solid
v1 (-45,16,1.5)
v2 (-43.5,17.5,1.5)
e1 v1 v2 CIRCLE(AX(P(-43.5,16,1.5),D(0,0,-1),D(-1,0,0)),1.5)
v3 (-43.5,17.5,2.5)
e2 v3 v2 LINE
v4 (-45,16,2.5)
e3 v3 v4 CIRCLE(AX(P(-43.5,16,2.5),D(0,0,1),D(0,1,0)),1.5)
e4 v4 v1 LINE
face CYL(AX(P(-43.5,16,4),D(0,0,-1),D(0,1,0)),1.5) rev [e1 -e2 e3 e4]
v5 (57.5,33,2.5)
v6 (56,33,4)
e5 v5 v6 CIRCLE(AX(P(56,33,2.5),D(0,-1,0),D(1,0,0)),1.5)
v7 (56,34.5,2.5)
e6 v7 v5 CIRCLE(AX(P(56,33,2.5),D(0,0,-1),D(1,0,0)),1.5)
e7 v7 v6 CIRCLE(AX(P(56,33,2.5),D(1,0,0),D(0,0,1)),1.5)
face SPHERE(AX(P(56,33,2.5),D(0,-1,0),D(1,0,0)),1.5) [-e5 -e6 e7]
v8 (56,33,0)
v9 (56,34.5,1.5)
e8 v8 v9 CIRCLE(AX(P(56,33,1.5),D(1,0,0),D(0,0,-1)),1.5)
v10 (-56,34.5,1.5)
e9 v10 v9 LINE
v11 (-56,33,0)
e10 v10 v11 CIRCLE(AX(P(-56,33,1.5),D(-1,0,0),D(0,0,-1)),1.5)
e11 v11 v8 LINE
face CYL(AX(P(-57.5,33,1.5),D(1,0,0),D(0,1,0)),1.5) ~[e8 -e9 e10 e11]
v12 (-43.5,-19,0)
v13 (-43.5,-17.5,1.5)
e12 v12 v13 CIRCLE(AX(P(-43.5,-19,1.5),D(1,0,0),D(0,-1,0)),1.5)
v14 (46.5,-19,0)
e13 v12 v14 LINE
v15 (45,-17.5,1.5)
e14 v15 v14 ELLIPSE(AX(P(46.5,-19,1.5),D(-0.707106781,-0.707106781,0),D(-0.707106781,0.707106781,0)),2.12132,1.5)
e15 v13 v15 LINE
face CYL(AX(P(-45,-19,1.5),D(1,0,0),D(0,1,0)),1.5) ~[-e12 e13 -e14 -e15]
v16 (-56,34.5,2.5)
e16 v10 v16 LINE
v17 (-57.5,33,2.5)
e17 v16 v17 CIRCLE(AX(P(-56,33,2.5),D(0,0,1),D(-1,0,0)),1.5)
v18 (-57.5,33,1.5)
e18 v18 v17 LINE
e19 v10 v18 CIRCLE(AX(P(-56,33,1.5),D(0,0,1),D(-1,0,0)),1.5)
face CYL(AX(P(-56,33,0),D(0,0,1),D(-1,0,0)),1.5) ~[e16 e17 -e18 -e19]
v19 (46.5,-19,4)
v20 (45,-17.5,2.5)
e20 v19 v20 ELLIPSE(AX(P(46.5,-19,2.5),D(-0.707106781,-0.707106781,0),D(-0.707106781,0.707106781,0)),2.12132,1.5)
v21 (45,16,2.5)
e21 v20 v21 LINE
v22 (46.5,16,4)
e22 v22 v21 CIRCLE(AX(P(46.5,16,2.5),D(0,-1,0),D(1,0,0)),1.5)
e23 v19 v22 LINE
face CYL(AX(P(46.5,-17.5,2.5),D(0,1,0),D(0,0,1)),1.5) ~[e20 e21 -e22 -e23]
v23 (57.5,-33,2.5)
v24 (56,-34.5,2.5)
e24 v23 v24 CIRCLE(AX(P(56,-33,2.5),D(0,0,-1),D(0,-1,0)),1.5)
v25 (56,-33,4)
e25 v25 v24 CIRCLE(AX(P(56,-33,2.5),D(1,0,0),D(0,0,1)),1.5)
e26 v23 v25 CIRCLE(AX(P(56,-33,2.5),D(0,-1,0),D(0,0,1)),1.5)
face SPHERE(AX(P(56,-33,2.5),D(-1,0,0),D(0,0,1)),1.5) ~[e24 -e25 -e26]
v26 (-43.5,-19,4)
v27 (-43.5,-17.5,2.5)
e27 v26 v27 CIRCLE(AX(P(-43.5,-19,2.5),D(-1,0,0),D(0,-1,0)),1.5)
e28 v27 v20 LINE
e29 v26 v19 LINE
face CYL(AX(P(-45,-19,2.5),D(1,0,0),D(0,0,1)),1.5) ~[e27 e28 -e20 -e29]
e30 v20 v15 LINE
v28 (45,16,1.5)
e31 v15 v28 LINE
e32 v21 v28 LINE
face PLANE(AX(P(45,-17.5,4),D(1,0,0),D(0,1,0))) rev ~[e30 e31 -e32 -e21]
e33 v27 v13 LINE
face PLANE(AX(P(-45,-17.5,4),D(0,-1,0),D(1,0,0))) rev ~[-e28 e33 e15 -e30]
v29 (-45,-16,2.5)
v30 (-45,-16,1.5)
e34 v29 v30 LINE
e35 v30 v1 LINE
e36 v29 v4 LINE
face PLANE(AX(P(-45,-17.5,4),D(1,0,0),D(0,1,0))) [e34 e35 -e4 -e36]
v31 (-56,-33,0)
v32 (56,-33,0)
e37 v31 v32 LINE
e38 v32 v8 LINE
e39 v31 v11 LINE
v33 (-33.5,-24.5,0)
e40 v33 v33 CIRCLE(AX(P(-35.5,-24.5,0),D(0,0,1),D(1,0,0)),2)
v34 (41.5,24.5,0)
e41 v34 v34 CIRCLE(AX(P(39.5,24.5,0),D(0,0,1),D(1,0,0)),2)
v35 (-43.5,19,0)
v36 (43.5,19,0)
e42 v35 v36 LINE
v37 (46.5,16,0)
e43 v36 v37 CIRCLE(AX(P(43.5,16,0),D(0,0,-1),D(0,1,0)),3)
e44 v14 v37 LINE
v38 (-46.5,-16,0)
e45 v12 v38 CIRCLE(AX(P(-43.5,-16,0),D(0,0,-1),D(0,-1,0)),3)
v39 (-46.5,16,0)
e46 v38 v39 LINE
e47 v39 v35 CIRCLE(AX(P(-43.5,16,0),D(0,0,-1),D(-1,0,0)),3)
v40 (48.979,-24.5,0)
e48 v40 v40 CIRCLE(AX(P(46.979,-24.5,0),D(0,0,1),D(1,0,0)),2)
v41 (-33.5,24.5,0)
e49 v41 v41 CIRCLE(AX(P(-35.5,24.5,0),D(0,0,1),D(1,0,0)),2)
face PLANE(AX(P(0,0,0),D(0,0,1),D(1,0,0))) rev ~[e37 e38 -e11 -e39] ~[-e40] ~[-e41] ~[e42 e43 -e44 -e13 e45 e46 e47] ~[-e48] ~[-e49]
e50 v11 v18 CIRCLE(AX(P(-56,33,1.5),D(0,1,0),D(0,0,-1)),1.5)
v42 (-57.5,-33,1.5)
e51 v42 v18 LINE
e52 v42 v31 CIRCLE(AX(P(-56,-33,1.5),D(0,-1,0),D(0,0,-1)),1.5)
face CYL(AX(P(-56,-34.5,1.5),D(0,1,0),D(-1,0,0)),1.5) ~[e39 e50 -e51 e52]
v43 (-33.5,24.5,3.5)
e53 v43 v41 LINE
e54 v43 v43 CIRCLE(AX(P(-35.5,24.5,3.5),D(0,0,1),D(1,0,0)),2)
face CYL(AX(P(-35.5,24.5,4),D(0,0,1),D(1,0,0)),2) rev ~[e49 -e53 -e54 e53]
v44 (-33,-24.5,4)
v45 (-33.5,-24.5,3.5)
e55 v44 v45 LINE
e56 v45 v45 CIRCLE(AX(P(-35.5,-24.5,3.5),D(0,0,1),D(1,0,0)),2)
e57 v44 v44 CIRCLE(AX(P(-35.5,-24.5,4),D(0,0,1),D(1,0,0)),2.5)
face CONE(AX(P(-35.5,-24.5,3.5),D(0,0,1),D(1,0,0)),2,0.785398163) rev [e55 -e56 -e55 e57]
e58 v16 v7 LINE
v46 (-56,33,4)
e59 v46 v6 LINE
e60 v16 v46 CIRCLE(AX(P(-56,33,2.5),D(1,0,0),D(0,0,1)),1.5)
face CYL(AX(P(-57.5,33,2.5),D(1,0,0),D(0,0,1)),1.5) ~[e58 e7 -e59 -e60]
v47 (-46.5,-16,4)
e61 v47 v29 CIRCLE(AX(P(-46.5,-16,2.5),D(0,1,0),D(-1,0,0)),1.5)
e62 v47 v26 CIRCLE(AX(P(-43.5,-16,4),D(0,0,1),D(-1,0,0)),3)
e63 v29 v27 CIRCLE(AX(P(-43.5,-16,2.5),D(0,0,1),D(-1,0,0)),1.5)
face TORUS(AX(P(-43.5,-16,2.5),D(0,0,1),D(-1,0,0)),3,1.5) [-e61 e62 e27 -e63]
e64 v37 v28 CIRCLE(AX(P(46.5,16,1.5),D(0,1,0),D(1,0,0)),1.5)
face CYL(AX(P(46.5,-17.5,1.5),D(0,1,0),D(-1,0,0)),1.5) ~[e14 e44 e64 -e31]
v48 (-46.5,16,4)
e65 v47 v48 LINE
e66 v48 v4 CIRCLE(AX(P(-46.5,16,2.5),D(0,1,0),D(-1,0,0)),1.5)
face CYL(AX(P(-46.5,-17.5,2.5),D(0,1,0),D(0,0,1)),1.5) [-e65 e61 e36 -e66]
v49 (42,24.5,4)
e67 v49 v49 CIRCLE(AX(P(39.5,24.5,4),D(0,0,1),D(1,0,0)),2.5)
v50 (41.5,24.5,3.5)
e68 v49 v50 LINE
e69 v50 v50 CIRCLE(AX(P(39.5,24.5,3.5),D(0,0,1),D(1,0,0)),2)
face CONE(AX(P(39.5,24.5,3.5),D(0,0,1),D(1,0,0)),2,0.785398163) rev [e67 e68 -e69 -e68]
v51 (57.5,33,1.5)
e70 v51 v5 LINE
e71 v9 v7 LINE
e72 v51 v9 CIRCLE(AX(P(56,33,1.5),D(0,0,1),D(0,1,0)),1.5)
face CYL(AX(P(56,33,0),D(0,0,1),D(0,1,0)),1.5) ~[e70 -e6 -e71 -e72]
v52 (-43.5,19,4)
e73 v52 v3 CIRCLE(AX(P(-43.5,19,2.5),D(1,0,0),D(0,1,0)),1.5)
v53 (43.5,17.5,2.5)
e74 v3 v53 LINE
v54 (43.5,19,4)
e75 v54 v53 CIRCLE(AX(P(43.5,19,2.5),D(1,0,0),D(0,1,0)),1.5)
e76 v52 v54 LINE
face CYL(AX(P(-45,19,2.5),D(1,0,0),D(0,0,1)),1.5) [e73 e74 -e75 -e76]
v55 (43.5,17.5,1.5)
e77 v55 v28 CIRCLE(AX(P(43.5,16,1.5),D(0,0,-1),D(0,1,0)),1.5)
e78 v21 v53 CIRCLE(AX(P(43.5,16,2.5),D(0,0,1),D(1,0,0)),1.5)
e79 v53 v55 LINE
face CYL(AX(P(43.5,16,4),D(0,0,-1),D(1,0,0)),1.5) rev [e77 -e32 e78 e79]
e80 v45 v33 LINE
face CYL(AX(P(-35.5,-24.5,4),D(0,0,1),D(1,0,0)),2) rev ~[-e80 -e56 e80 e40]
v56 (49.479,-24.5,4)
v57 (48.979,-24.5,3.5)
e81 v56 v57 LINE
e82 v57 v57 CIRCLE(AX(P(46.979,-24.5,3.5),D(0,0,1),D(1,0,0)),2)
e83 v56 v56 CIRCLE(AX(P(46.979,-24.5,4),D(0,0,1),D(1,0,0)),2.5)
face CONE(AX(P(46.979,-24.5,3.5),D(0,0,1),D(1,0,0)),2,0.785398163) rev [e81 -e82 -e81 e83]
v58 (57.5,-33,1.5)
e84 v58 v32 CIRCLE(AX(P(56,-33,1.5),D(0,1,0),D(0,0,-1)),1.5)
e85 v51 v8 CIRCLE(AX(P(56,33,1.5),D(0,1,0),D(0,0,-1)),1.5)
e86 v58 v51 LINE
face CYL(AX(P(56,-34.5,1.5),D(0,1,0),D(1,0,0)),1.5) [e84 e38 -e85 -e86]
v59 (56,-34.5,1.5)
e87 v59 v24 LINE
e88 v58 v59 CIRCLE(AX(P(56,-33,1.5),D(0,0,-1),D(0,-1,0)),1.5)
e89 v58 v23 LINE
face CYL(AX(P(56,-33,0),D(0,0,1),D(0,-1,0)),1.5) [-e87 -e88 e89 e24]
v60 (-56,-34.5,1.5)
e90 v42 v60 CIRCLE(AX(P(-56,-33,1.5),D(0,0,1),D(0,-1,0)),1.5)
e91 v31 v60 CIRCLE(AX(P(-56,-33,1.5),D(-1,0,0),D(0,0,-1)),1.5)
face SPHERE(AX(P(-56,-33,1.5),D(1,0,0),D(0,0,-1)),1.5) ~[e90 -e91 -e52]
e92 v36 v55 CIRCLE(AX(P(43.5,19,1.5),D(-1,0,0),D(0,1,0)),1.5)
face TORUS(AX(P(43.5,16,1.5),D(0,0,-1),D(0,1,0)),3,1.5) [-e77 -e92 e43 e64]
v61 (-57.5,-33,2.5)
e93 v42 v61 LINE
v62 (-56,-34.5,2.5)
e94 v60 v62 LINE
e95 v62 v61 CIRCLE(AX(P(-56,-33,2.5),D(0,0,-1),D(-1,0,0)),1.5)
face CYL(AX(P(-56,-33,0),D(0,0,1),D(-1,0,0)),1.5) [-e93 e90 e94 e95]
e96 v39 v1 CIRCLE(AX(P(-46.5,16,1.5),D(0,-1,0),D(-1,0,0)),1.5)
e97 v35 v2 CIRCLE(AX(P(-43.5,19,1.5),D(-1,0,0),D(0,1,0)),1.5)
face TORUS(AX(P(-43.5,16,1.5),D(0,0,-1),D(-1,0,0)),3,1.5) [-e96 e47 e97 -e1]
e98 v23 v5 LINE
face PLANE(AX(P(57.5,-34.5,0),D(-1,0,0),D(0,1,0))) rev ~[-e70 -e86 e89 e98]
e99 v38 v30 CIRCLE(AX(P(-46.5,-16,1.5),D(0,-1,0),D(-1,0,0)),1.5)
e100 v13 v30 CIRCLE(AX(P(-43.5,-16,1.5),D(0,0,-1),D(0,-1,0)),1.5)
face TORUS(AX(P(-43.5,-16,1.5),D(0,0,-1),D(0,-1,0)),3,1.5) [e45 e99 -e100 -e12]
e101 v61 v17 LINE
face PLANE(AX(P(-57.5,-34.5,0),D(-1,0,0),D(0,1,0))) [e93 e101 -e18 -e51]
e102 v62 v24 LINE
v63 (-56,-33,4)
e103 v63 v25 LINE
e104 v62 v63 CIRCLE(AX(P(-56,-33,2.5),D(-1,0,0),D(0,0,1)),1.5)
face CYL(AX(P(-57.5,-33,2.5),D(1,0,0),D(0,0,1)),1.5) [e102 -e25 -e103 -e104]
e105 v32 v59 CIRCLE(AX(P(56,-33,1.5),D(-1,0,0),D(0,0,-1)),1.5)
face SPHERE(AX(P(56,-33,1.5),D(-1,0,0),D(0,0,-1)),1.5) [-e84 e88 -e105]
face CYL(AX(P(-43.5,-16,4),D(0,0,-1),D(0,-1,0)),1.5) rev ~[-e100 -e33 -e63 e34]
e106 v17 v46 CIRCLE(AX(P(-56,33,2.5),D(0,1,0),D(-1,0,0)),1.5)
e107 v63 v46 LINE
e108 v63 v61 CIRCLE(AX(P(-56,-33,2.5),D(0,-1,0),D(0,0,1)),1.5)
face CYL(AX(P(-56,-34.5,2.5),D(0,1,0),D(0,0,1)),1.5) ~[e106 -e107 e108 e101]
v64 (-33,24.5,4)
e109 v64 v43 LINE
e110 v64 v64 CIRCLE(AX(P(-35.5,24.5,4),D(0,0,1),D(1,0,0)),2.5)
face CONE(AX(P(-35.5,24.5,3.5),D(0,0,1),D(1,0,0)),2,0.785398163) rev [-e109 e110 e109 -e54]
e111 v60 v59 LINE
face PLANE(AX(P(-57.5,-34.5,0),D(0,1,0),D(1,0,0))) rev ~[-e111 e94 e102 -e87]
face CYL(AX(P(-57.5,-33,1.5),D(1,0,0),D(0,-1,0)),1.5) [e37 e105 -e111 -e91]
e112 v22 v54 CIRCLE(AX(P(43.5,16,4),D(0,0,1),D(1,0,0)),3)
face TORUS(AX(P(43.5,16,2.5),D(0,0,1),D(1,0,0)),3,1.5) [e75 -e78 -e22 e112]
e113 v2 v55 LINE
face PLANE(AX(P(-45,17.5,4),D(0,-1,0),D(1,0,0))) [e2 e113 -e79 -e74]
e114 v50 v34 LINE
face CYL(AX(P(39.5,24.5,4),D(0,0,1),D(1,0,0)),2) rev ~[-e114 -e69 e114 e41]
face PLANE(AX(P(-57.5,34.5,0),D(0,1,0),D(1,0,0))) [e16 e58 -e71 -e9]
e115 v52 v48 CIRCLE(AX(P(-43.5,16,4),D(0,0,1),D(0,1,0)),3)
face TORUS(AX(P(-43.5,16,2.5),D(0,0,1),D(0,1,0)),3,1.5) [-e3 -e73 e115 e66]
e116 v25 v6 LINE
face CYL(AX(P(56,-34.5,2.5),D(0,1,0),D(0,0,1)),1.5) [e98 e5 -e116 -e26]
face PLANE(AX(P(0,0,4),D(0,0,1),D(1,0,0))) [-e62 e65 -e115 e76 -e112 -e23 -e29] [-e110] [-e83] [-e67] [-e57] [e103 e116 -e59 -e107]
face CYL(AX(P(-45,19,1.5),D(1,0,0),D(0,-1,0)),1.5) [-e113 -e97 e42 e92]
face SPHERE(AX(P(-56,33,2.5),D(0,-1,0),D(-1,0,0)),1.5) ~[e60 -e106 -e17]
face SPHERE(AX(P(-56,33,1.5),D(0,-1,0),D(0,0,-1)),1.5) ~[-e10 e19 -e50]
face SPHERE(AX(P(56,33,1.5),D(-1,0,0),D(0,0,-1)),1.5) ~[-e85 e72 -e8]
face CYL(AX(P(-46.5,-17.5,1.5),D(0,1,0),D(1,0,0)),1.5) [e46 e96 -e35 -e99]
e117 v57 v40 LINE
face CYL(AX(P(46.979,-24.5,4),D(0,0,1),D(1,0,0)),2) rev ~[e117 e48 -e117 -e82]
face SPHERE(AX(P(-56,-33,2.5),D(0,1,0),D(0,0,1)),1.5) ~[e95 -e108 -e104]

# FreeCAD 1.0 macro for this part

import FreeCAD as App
import Part
import Sketcher

V = App.Vector


def edges_at(feature, points):
    """Names of the edges that pass closest to the given points."""
    edges = feature.Shape.Edges
    near = lambda p: min(range(len(edges)), key=lambda i: edges[i].distToShape(Part.Vertex(*p))[0])
    return sorted({f"Edge{near(p) + 1}" for p in points})


def add_polygon(sketch, points):
    """Adds a closed chain of lines whose ends are joined by coincident constraints."""
    first, n = sketch.GeometryCount, len(points)
    for a, b in zip(points, points[1:] + points[:1]):
        sketch.addGeometry(Part.LineSegment(App.Vector(*a, 0), App.Vector(*b, 0)), False)
    for i in range(n):
        sketch.addConstraint(Sketcher.Constraint("Coincident", first + i, 2, first + (i + 1) % n, 1))

doc = App.newDocument("Part")
body = doc.addObject("PartDesign::Body", "Body")

sketch1 = doc.addObject("Sketcher::SketchObject", "Sketch")
body.addObject(sketch1)
sketch1.AttachmentSupport = (doc.XY_Plane, [""])
sketch1.MapMode = "FlatFace"
add_polygon(sketch1, [(-58, 34), (-58, -34), (58, -34), (58, 34)])
sketch1.addConstraint([
    Sketcher.Constraint("Vertical", 0),
    Sketcher.Constraint("Horizontal", 1),
    Sketcher.Constraint("Vertical", 2),
    Sketcher.Constraint("Horizontal", 3),
    Sketcher.Constraint("Symmetric", 0, 2, 2, 2, -1, 1),
    Sketcher.Constraint("DistanceX", 1, 1, 1, 2, 115.0),
    Sketcher.Constraint("DistanceY", 0, 2, 0, 1, 69.0),
])
pad1 = doc.addObject("PartDesign::Pad", "Pad")
body.addObject(pad1)
pad1.Profile = sketch1
pad1.Length = 4

sketch2 = doc.addObject("Sketcher::SketchObject", "Sketch001")
body.addObject(sketch2)
sketch2.AttachmentSupport = (doc.XY_Plane, [""])
sketch2.MapMode = "FlatFace"
sketch2.AttachmentOffset = App.Placement(V(0, 0, 4), App.Rotation())
sketch2.addGeometry([
    Part.Circle(V(-35.5, 24.5, 0), V(0, 0, 1), 2),
    Part.Circle(V(39.5, 24.5, 0), V(0, 0, 1), 2),
    Part.Circle(V(47, -24.5, 0), V(0, 0, 1), 2),
    Part.Circle(V(-35.5, -24.5, 0), V(0, 0, 1), 2),
], False)
sketch2.addConstraint([
    Sketcher.Constraint("Equal", 0, 1),
    Sketcher.Constraint("Equal", 1, 2),
    Sketcher.Constraint("Equal", 2, 3),
    Sketcher.Constraint("Symmetric", 0, 3, 3, 3, -1),
    Sketcher.Constraint("Horizontal", 0, 3, 1, 3),
    Sketcher.Constraint("Horizontal", 2, 3, 3, 3),
    Sketcher.Constraint("Diameter", 0, 4.0),
    Sketcher.Constraint("DistanceX", 0, 3, 1, 3, 75.0),
    Sketcher.Constraint("DistanceY", 2, 3, 1, 3, 49.0),
    Sketcher.Constraint("DistanceX", 0, 3, -1, 1, 35.5),
    Sketcher.Constraint("DistanceX", -1, 1, 2, 3, 46.979),
])
pocket1 = doc.addObject("PartDesign::Pocket", "Pocket")
body.addObject(pocket1)
pocket1.Profile = sketch2
pocket1.Length = 4

sketch3 = doc.addObject("Sketcher::SketchObject", "Sketch002")
body.addObject(sketch3)
sketch3.AttachmentSupport = (doc.XY_Plane, [""])
sketch3.MapMode = "FlatFace"
sketch3.AttachmentOffset = App.Placement(V(0, 0, 4), App.Rotation())
add_polygon(sketch3, [(-45, 18), (-45, -18), (45, -18), (45, 18)])
sketch3.addConstraint([
    Sketcher.Constraint("Vertical", 0),
    Sketcher.Constraint("Horizontal", 1),
    Sketcher.Constraint("Vertical", 2),
    Sketcher.Constraint("Horizontal", 3),
    Sketcher.Constraint("Symmetric", 0, 2, 2, 2, -1, 1),
    Sketcher.Constraint("DistanceX", 1, 1, 1, 2, 90.0),
    Sketcher.Constraint("DistanceY", 0, 2, 0, 1, 35.0),
])
pocket2 = doc.addObject("PartDesign::Pocket", "Pocket001")
body.addObject(pocket2)
pocket2.Profile = sketch3
pocket2.Length = 4
doc.recompute()

chamfer = doc.addObject("PartDesign::Chamfer", "Chamfer")
body.addObject(chamfer)
chamfer.Base = (pocket2, edges_at(pocket2, [
    (44.979, -24.5, 4),
    (-37.5, 24.5, 4),
    (-37.5, -24.5, 4),
    (37.5, 24.5, 4),
]))
chamfer.Size = 0.5
doc.recompute()

fillet = doc.addObject("PartDesign::Fillet", "Fillet")
body.addObject(fillet)
fillet.Base = (chamfer, edges_at(chamfer, [
    (-57.5, 0, 4),
    (0, -34.5, 4),
    (45, 0, 0),
    (45, 17.5, 2),
    (0, -17.5, 0),
    (-45, 0, 0),
    (-45, -17.5, 2),
    (0, 17.5, 0),
    (-45, 17.5, 2),
    (45, 0, 4),
    (0, 17.5, 4),
    (-45, 0, 4),
    (0, -17.5, 4),
    (57.5, 0, 4),
    (0, -34.5, 0),
    (-57.5, 0, 0),
    (0, 34.5, 0),
    (57.5, 0, 0),
    (57.5, -34.5, 2),
    (-57.5, -34.5, 2),
    (-57.5, 34.5, 2),
    (57.5, 34.5, 2),
    (0, 34.5, 4),
]))
fillet.Radius = 1.5

doc.recompute()
